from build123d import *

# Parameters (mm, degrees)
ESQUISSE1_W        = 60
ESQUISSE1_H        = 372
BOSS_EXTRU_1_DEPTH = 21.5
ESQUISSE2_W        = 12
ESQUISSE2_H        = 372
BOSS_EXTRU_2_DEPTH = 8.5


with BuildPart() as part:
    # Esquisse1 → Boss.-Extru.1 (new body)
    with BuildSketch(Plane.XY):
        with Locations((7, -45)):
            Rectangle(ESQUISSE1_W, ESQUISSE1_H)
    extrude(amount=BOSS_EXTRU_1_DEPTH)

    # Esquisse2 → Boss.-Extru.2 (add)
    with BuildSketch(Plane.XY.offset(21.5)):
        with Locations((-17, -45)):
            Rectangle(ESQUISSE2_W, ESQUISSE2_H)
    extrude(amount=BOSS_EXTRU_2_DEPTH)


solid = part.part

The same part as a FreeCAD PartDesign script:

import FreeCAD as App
import Part
import Sketcher
from FreeCAD import Vector


def add_polygon(sketch, points):
    """Adds a closed chain of lines whose ends are joined by coincident constraints."""
    first, n = sketch.GeometryCount, len(points)
    for a, b in zip(points, points[1:] + points[:1]):
        sketch.addGeometry(Part.LineSegment(App.Vector(*a, 0), App.Vector(*b, 0)), False)
    for i in range(n):
        sketch.addConstraint(Sketcher.Constraint("Coincident", first + i, 2, first + (i + 1) % n, 1))

doc = App.newDocument("Part")
body = doc.addObject("PartDesign::Body", "Body")

sketch1 = body.newObject("Sketcher::SketchObject", "Sketch")
sketch1.AttachmentSupport = (doc.getObject("XY_Plane"), [""])
sketch1.MapMode = "FlatFace"
add_polygon(sketch1, [(-23, 141), (-23, -231), (37, -231), (37, 141)])
sketch1.addConstraint([
    Sketcher.Constraint("Vertical", 0),
    Sketcher.Constraint("Horizontal", 1),
    Sketcher.Constraint("Vertical", 2),
    Sketcher.Constraint("Horizontal", 3),
    Sketcher.Constraint("DistanceX", 1, 1, 1, 2, 60.0),
    Sketcher.Constraint("DistanceY", 0, 2, 0, 1, 372.0),
    Sketcher.Constraint("DistanceX", 0, 2, -1, 1, 23.0),
    Sketcher.Constraint("DistanceY", 0, 2, -1, 1, 231.0),
])
pad1 = body.newObject("PartDesign::Pad", "Pad")
pad1.Profile = sketch1
pad1.Length = 21.5

sketch2 = body.newObject("Sketcher::SketchObject", "Sketch001")
sketch2.AttachmentSupport = (doc.getObject("XY_Plane"), [""])
sketch2.MapMode = "FlatFace"
sketch2.AttachmentOffset = App.Placement(Vector(0, 0, 21.5), App.Rotation())
add_polygon(sketch2, [(-23, 141), (-23, -231), (-11, -231), (-11, 141)])
sketch2.addConstraint([
    Sketcher.Constraint("Vertical", 0),
    Sketcher.Constraint("Horizontal", 1),
    Sketcher.Constraint("Vertical", 2),
    Sketcher.Constraint("Horizontal", 3),
    Sketcher.Constraint("DistanceX", 1, 1, 1, 2, 12.0),
    Sketcher.Constraint("DistanceY", 0, 2, 0, 1, 372.0),
    Sketcher.Constraint("DistanceX", 0, 2, -1, 1, 23.0),
    Sketcher.Constraint("DistanceY", 0, 2, -1, 1, 231.0),
])
pad2 = body.newObject("PartDesign::Pad", "Pad001")
pad2.Profile = sketch2
pad2.Length = 8.5

doc.recompute()
